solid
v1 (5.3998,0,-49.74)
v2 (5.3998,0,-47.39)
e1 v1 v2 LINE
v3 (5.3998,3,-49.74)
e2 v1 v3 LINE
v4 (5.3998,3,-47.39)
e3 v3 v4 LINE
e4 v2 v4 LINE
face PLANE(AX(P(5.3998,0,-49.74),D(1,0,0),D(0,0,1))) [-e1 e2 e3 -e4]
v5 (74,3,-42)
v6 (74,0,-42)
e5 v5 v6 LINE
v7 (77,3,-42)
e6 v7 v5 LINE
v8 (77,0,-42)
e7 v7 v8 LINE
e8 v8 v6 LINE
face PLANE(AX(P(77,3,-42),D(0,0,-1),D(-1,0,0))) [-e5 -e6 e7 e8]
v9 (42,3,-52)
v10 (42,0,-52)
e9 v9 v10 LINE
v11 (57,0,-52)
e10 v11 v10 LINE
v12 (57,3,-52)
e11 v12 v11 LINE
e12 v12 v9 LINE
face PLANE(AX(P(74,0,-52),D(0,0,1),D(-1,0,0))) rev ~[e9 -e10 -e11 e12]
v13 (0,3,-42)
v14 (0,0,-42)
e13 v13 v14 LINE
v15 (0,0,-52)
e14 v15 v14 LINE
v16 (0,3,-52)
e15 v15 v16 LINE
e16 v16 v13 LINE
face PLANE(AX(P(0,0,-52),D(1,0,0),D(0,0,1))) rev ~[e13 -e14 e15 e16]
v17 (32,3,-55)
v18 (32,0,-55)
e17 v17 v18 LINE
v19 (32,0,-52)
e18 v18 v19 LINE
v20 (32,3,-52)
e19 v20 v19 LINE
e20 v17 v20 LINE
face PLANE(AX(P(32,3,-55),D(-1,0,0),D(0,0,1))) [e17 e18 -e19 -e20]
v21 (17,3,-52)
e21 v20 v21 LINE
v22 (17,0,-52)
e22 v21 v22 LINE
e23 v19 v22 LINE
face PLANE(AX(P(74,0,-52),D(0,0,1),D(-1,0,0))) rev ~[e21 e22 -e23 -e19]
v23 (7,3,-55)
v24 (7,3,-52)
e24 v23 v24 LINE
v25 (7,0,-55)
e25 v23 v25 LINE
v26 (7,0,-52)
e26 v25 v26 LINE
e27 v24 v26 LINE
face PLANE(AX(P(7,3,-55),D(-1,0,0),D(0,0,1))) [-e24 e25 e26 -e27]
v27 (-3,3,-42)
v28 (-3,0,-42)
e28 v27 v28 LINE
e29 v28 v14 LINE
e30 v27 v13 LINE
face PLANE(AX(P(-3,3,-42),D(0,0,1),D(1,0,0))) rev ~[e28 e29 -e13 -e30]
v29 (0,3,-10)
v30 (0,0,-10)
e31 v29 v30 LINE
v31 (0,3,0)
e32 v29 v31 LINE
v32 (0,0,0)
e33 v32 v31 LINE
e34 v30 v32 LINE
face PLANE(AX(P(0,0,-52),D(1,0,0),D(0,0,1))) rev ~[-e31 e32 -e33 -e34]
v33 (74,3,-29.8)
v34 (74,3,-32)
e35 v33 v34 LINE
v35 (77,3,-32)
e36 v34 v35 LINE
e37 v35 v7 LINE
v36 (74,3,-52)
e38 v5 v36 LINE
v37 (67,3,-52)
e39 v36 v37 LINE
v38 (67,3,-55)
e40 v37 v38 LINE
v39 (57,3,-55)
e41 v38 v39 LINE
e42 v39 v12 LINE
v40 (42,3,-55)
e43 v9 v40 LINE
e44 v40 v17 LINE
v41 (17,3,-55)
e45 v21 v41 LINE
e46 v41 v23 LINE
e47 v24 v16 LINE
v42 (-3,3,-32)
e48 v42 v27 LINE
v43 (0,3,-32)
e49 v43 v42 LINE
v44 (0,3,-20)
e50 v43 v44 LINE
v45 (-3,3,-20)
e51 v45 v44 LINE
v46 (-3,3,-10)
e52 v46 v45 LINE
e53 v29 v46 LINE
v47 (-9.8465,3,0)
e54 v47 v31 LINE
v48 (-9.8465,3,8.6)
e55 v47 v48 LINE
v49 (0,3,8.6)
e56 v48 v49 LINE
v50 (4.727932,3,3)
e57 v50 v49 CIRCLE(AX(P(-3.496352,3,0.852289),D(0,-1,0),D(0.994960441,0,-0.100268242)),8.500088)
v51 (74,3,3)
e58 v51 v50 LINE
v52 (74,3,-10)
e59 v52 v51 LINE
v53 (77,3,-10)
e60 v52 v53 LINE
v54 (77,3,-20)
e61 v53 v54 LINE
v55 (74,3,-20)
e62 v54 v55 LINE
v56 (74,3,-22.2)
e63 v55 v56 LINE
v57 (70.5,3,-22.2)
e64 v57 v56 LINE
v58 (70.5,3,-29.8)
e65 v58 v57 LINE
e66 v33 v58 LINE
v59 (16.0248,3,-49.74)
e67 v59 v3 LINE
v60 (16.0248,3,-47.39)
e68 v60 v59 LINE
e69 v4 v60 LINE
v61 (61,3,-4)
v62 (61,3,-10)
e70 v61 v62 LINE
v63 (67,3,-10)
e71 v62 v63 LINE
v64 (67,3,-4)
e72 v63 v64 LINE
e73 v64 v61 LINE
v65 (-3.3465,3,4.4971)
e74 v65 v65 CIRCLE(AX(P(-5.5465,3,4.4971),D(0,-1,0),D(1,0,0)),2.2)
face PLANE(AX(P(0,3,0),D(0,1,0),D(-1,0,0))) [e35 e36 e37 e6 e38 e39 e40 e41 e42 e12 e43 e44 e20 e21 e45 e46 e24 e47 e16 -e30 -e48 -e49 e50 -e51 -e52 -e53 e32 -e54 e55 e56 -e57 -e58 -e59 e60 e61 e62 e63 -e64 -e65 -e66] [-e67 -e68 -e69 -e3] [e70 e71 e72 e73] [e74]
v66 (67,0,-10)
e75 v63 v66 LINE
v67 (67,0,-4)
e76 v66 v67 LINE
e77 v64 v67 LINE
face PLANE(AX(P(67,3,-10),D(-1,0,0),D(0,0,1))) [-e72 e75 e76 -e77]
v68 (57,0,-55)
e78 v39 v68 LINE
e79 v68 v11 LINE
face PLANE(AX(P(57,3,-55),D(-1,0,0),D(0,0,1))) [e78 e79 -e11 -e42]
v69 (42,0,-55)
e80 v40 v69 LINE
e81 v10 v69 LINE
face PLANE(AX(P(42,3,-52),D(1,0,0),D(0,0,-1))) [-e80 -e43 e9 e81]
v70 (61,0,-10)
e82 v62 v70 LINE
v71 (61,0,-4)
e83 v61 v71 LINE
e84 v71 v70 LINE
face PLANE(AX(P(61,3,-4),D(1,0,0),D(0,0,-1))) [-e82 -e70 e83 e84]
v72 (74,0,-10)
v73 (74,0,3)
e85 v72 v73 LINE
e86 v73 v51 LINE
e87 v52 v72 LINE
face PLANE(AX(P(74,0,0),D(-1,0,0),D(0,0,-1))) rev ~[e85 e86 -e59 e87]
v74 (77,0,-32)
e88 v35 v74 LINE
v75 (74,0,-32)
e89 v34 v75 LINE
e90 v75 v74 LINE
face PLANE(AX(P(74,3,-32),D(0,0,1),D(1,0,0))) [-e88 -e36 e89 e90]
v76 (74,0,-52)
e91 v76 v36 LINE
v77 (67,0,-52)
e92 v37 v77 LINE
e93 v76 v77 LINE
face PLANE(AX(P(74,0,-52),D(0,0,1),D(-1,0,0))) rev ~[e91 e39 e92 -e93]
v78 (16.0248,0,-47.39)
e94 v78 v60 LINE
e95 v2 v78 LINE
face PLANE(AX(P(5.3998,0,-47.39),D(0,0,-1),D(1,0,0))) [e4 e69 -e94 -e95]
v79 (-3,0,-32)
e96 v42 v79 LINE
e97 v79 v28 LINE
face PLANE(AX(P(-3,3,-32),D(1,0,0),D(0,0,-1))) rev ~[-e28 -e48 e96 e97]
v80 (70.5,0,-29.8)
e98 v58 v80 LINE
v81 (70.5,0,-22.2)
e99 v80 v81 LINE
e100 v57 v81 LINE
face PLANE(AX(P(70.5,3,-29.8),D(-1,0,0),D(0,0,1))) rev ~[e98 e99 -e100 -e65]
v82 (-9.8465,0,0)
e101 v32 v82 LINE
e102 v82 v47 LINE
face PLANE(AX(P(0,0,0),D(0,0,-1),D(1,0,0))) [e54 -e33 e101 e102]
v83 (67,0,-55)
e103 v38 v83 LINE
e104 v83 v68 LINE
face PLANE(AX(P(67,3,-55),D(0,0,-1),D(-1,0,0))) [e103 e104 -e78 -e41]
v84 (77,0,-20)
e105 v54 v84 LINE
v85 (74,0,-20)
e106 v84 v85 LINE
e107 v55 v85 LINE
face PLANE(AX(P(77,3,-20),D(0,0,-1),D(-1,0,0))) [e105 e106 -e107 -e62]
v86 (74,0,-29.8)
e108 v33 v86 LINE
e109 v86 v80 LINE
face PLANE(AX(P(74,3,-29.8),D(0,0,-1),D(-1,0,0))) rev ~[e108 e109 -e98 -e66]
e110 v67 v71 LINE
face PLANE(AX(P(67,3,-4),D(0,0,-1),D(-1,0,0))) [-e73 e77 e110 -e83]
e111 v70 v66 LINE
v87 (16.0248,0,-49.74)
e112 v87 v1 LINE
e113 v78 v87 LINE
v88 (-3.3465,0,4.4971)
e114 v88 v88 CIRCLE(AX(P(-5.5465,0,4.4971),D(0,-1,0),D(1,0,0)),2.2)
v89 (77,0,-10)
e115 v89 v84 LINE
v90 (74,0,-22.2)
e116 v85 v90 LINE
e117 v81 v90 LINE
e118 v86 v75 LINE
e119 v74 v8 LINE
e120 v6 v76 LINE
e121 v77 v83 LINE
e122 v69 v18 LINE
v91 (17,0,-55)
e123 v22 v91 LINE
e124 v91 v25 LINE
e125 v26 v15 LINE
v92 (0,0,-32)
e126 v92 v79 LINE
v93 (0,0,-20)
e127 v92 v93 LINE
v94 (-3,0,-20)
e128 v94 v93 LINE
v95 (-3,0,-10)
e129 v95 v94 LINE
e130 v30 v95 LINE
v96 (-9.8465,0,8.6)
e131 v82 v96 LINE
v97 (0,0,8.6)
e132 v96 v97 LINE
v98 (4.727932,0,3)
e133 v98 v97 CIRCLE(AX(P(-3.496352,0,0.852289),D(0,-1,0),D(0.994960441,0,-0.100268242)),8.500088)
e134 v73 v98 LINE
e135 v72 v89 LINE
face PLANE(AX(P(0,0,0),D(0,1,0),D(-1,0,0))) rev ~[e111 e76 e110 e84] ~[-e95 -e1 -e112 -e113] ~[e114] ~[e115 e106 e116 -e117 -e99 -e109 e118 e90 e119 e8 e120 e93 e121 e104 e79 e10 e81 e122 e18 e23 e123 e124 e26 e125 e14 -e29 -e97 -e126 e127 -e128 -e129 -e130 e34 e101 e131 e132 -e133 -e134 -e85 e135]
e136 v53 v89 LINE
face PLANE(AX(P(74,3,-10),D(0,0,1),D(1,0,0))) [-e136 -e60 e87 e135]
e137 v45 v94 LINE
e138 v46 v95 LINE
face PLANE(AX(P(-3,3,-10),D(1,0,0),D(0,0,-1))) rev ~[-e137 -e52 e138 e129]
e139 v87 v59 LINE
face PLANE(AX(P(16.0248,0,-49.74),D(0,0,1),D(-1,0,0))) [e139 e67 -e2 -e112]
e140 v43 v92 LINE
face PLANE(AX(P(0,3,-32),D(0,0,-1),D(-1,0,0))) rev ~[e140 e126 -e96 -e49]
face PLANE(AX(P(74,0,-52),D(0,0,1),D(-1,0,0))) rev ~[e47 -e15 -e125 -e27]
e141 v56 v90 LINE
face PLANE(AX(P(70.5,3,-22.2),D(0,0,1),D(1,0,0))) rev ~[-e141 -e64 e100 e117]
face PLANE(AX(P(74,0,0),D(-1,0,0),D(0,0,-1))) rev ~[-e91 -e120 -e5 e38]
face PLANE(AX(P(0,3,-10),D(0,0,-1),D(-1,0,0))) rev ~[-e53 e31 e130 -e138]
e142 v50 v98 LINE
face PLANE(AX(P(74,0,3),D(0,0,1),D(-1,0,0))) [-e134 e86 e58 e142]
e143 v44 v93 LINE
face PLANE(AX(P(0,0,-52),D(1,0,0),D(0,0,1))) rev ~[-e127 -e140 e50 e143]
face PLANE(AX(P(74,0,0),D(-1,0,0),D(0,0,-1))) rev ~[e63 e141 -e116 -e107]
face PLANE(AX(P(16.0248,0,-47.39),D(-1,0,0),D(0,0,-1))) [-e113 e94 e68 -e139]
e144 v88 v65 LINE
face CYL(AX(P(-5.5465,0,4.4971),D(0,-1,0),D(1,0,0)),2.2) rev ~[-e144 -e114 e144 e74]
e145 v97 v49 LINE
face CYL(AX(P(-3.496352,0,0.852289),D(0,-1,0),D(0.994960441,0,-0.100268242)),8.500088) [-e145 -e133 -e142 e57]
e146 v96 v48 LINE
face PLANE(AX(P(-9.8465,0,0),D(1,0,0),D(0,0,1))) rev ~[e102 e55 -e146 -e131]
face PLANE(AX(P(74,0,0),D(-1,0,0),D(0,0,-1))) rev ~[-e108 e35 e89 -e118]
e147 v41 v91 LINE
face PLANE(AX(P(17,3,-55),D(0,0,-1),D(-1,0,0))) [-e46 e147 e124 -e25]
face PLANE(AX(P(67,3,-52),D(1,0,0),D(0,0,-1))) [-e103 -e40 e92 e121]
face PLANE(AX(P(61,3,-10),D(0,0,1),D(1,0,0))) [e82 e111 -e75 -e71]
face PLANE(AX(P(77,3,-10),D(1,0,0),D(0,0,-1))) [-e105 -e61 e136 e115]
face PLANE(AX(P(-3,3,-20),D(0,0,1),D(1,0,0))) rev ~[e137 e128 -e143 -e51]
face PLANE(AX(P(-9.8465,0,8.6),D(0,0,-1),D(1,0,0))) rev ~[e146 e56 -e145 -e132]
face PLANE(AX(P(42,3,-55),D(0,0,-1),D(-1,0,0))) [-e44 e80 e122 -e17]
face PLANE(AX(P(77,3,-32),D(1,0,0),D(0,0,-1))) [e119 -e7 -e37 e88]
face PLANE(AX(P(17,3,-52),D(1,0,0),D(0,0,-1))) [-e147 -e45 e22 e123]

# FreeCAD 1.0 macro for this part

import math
import FreeCAD as App
import Part
import Sketcher
from FreeCAD import Vector
Q = App.Units.Quantity

doc = App.newDocument("Part")
body = doc.addObject("PartDesign::Body", "Body")

sketch1 = body.newObject("Sketcher::SketchObject", "Sketch")
sketch1.AttachmentSupport = (doc.getObject("XZ_Plane"), [""])
sketch1.MapMode = "FlatFace"
sketch1.addGeometry([
    Part.LineSegment(Vector(0, -52, 0), Vector(0, 0, 0)),
    Part.LineSegment(Vector(0, 0, 0), Vector(74, 0, 0)),
    Part.LineSegment(Vector(74, 0, 0), Vector(74, -52, 0)),
    Part.LineSegment(Vector(74, -52, 0), Vector(0, -52, 0)),
], False)
sketch1.addConstraint([
    Sketcher.Constraint("Coincident", 0, 2, 1, 1),
    Sketcher.Constraint("Coincident", 1, 2, 2, 1),
    Sketcher.Constraint("Coincident", 2, 2, 3, 1),
    Sketcher.Constraint("Coincident", 3, 2, 0, 1),
    Sketcher.Constraint("Vertical", 0),
    Sketcher.Constraint("Horizontal", 1),
    Sketcher.Constraint("Vertical", 2),
    Sketcher.Constraint("Horizontal", 3),
    Sketcher.Constraint("Coincident", 0, 2, -1, 1),
    Sketcher.Constraint("DistanceX", 1, 1, 1, 2, Q("74 mm")),
    Sketcher.Constraint("DistanceY", 0, 1, 0, 2, Q("52 mm")),
])
pad1 = body.newObject("PartDesign::Pad", "Pad")
pad1.Profile = sketch1
pad1.Length = 3
pad1.Reversed = True

sketch2 = body.newObject("Sketcher::SketchObject", "Sketch001")
sketch2.AttachmentSupport = (doc.getObject("XZ_Plane"), [""])
sketch2.MapMode = "FlatFace"
sketch2.AttachmentOffset = App.Placement(Vector(0, 0, -3), App.Rotation())
sketch2.addGeometry([
    Part.LineSegment(Vector(7, -55, 0), Vector(7, -52, 0)),
    Part.LineSegment(Vector(7, -52, 0), Vector(17, -52, 0)),
    Part.LineSegment(Vector(17, -52, 0), Vector(17, -55, 0)),
    Part.LineSegment(Vector(17, -55, 0), Vector(7, -55, 0)),
    Part.LineSegment(Vector(57, -52, 0), Vector(67, -52, 0)),
    Part.LineSegment(Vector(67, -52, 0), Vector(67, -55, 0)),
    Part.LineSegment(Vector(67, -55, 0), Vector(57, -55, 0)),
    Part.LineSegment(Vector(57, -55, 0), Vector(57, -52, 0)),
    Part.LineSegment(Vector(32, -55, 0), Vector(32, -52, 0)),
    Part.LineSegment(Vector(32, -52, 0), Vector(42, -52, 0)),
    Part.LineSegment(Vector(42, -52, 0), Vector(42, -55, 0)),
    Part.LineSegment(Vector(42, -55, 0), Vector(32, -55, 0)),
], False)
sketch2.addConstraint([
    Sketcher.Constraint("Coincident", 0, 2, 1, 1),
    Sketcher.Constraint("Coincident", 1, 2, 2, 1),
    Sketcher.Constraint("Coincident", 2, 2, 3, 1),
    Sketcher.Constraint("Coincident", 3, 2, 0, 1),
    Sketcher.Constraint("Coincident", 4, 2, 5, 1),
    Sketcher.Constraint("Coincident", 5, 2, 6, 1),
    Sketcher.Constraint("Coincident", 6, 2, 7, 1),
    Sketcher.Constraint("Coincident", 7, 2, 4, 1),
    Sketcher.Constraint("Coincident", 8, 2, 9, 1),
    Sketcher.Constraint("Coincident", 9, 2, 10, 1),
    Sketcher.Constraint("Coincident", 10, 2, 11, 1),
    Sketcher.Constraint("Coincident", 11, 2, 8, 1),
    Sketcher.Constraint("Vertical", 0),
    Sketcher.Constraint("Horizontal", 1),
    Sketcher.Constraint("Vertical", 2),
    Sketcher.Constraint("Horizontal", 3),
    Sketcher.Constraint("Horizontal", 4),
    Sketcher.Constraint("Vertical", 5),
    Sketcher.Constraint("Horizontal", 6),
    Sketcher.Constraint("Vertical", 7),
    Sketcher.Constraint("Vertical", 8),
    Sketcher.Constraint("Horizontal", 9),
    Sketcher.Constraint("Vertical", 10),
    Sketcher.Constraint("Horizontal", 11),
    Sketcher.Constraint("Horizontal", 1, 2, 4, 2),
    Sketcher.Constraint("Horizontal", 3, 2, 5, 2),
    Sketcher.Constraint("Horizontal", 7, 2, 8, 2),
    Sketcher.Constraint("Horizontal", 6, 2, 10, 2),
    Sketcher.Constraint("Equal", 3, 4),
    Sketcher.Constraint("Equal", 6, 9),
    Sketcher.Constraint("DistanceX", 1, 1, 1, 2, Q("10 mm")),
    Sketcher.Constraint("DistanceY", 0, 1, 0, 2, Q("3 mm")),
    Sketcher.Constraint("DistanceX", -1, 1, 0, 2, Q("7 mm")),
    Sketcher.Constraint("DistanceX", 2, 2, 6, 2, Q("40 mm")),
    Sketcher.Constraint("DistanceX", 1, 2, 8, 2, Q("15 mm")),
    Sketcher.Constraint("DistanceY", 0, 2, -1, 1, Q("52 mm")),
])
pad2 = body.newObject("PartDesign::Pad", "Pad001")
pad2.Profile = sketch2
pad2.Length = 3

sketch3 = body.newObject("Sketcher::SketchObject", "Sketch002")
sketch3.AttachmentSupport = (doc.getObject("XZ_Plane"), [""])
sketch3.MapMode = "FlatFace"
sketch3.addGeometry([
    Part.LineSegment(Vector(5.4, -49.7, 0), Vector(16, -49.7, 0)),
    Part.LineSegment(Vector(16, -49.7, 0), Vector(16, -47.4, 0)),
    Part.LineSegment(Vector(16, -47.4, 0), Vector(5.4, -47.4, 0)),
    Part.LineSegment(Vector(5.4, -47.4, 0), Vector(5.4, -49.7, 0)),
], False)
sketch3.addConstraint([
    Sketcher.Constraint("Coincident", 0, 2, 1, 1),
    Sketcher.Constraint("Coincident", 1, 2, 2, 1),
    Sketcher.Constraint("Coincident", 2, 2, 3, 1),
    Sketcher.Constraint("Coincident", 3, 2, 0, 1),
    Sketcher.Constraint("Horizontal", 0),
    Sketcher.Constraint("Vertical", 1),
    Sketcher.Constraint("Horizontal", 2),
    Sketcher.Constraint("Vertical", 3),
    Sketcher.Constraint("DistanceY", 1, 1, 1, 2, Q("2.35 mm")),
    Sketcher.Constraint("DistanceX", 0, 1, 0, 2, Q("10.625 mm")),
    Sketcher.Constraint("DistanceY", 0, 2, -1, 1, Q("49.74 mm")),
    Sketcher.Constraint("DistanceX", -1, 1, 0, 2, Q("16.0248 mm")),
])
pocket1 = body.newObject("PartDesign::Pocket", "Pocket")
pocket1.Profile = sketch3
pocket1.Length = 3

sketch4 = body.newObject("Sketcher::SketchObject", "Sketch003")
sketch4.AttachmentSupport = (doc.getObject("XZ_Plane"), [""])
sketch4.MapMode = "FlatFace"
sketch4.AttachmentOffset = App.Placement(Vector(0, 0, -3), App.Rotation())
sketch4.addGeometry([
    Part.LineSegment(Vector(70.5, -29.8, 0), Vector(70.5, -22.2, 0)),
    Part.LineSegment(Vector(70.5, -22.2, 0), Vector(74, -22.2, 0)),
    Part.LineSegment(Vector(74, -22.2, 0), Vector(74, -29.8, 0)),
    Part.LineSegment(Vector(74, -29.8, 0), Vector(70.5, -29.8, 0)),
], False)
sketch4.addConstraint([
    Sketcher.Constraint("Coincident", 0, 2, 1, 1),
    Sketcher.Constraint("Coincident", 1, 2, 2, 1),
    Sketcher.Constraint("Coincident", 2, 2, 3, 1),
    Sketcher.Constraint("Coincident", 3, 2, 0, 1),
    Sketcher.Constraint("Vertical", 0),
    Sketcher.Constraint("Horizontal", 1),
    Sketcher.Constraint("Vertical", 2),
    Sketcher.Constraint("Horizontal", 3),
    Sketcher.Constraint("DistanceX", 1, 1, 1, 2, Q("3.5 mm")),
    Sketcher.Constraint("DistanceY", 0, 1, 0, 2, Q("7.6 mm")),
    Sketcher.Constraint("DistanceY", 0, 2, -1, 1, Q("22.2 mm")),
    Sketcher.Constraint("DistanceX", -1, 1, 1, 2, Q("74 mm")),
])
pocket2 = body.newObject("PartDesign::Pocket", "Pocket001")
pocket2.Profile = sketch4
pocket2.Length = 10
pocket2.Reversed = True

sketch5 = body.newObject("Sketcher::SketchObject", "Sketch004")
sketch5.AttachmentSupport = (doc.getObject("XZ_Plane"), [""])
sketch5.MapMode = "FlatFace"
sketch5.AttachmentOffset = App.Placement(Vector(0, 0, -3), App.Rotation())
sketch5.addGeometry([
    Part.LineSegment(Vector(-3, -10, 0), Vector(0, -10, 0)),
    Part.LineSegment(Vector(0, -10, 0), Vector(0, -20, 0)),
    Part.LineSegment(Vector(0, -20, 0), Vector(-3, -20, 0)),
    Part.LineSegment(Vector(-3, -20, 0), Vector(-3, -10, 0)),
    Part.LineSegment(Vector(-3, -32, 0), Vector(0, -32, 0)),
    Part.LineSegment(Vector(0, -32, 0), Vector(0, -42, 0)),
    Part.LineSegment(Vector(0, -42, 0), Vector(-3, -42, 0)),
    Part.LineSegment(Vector(-3, -42, 0), Vector(-3, -32, 0)),
    Part.LineSegment(Vector(74, -20, 0), Vector(74, -10, 0)),
    Part.LineSegment(Vector(74, -10, 0), Vector(77, -10, 0)),
    Part.LineSegment(Vector(77, -10, 0), Vector(77, -20, 0)),
    Part.LineSegment(Vector(77, -20, 0), Vector(74, -20, 0)),
    Part.LineSegment(Vector(74, -42, 0), Vector(74, -32, 0)),
    Part.LineSegment(Vector(74, -32, 0), Vector(77, -32, 0)),
    Part.LineSegment(Vector(77, -32, 0), Vector(77, -42, 0)),
    Part.LineSegment(Vector(77, -42, 0), Vector(74, -42, 0)),
], False)
sketch5.addConstraint([
    Sketcher.Constraint("Coincident", 0, 2, 1, 1),
    Sketcher.Constraint("Coincident", 1, 2, 2, 1),
    Sketcher.Constraint("Coincident", 2, 2, 3, 1),
    Sketcher.Constraint("Coincident", 3, 2, 0, 1),
    Sketcher.Constraint("Coincident", 4, 2, 5, 1),
    Sketcher.Constraint("Coincident", 5, 2, 6, 1),
    Sketcher.Constraint("Coincident", 6, 2, 7, 1),
    Sketcher.Constraint("Coincident", 7, 2, 4, 1),
    Sketcher.Constraint("Coincident", 8, 2, 9, 1),
    Sketcher.Constraint("Coincident", 9, 2, 10, 1),
    Sketcher.Constraint("Coincident", 10, 2, 11, 1),
    Sketcher.Constraint("Coincident", 11, 2, 8, 1),
    Sketcher.Constraint("Coincident", 12, 2, 13, 1),
    Sketcher.Constraint("Coincident", 13, 2, 14, 1),
    Sketcher.Constraint("Coincident", 14, 2, 15, 1),
    Sketcher.Constraint("Coincident", 15, 2, 12, 1),
    Sketcher.Constraint("Horizontal", 0),
    Sketcher.Constraint("Vertical", 1),
    Sketcher.Constraint("Horizontal", 2),
    Sketcher.Constraint("Vertical", 3),
    Sketcher.Constraint("Horizontal", 4),
    Sketcher.Constraint("Vertical", 5),
    Sketcher.Constraint("Horizontal", 6),
    Sketcher.Constraint("Vertical", 7),
    Sketcher.Constraint("Vertical", 8),
    Sketcher.Constraint("Horizontal", 9),
    Sketcher.Constraint("Vertical", 10),
    Sketcher.Constraint("Horizontal", 11),
    Sketcher.Constraint("Vertical", 12),
    Sketcher.Constraint("Horizontal", 13),
    Sketcher.Constraint("Vertical", 14),
    Sketcher.Constraint("Horizontal", 15),
    Sketcher.Constraint("PointOnObject", 0, 2, -2),
    Sketcher.Constraint("PointOnObject", 4, 2, -2),
    Sketcher.Constraint("Horizontal", 3, 2, 8, 2),
    Sketcher.Constraint("Horizontal", 2, 2, 10, 2),
    Sketcher.Constraint("Horizontal", 7, 2, 12, 2),
    Sketcher.Constraint("Horizontal", 6, 2, 14, 2),
    Sketcher.Constraint("Vertical", 3, 2, 6, 2),
    Sketcher.Constraint("Vertical", 11, 2, 12, 2),
    Sketcher.Constraint("Vertical", 10, 2, 13, 2),
    Sketcher.Constraint("Equal", 6, 9),
    Sketcher.Constraint("Equal", 3, 5),
    Sketcher.Constraint("DistanceX", 0, 1, 0, 2, Q("3 mm")),
    Sketcher.Constraint("DistanceY", 1, 2, 1, 1, Q("10 mm")),
    Sketcher.Constraint("DistanceY", 0, 2, -1, 1, Q("10 mm")),
    Sketcher.Constraint("DistanceY", 4, 2, -1, 1, Q("32 mm")),
    Sketcher.Constraint("DistanceX", -1, 1, 8, 2, Q("74 mm")),
])
pad3 = body.newObject("PartDesign::Pad", "Pad002")
pad3.Profile = sketch5
pad3.Length = 3

sketch6 = body.newObject("Sketcher::SketchObject", "Sketch005")
sketch6.AttachmentSupport = (doc.getObject("XZ_Plane"), [""])
sketch6.MapMode = "FlatFace"
sketch6.addGeometry([
    Part.ArcOfCircle(Part.Circle(Vector(-3.5, 0.9, 0), Vector(0, 0, 1), 8.5), math.radians(-6), math.radians(66)),
    Part.LineSegment(Vector(0, 8.6, 0), Vector(-9.8, 8.6, 0)),
    Part.LineSegment(Vector(-9.8, 8.6, 0), Vector(-9.8, 0, 0)),
    Part.LineSegment(Vector(-9.8, 0, 0), Vector(5, 0, 0)),
    Part.Circle(Vector(-5.5, 4.5, 0), Vector(0, 0, 1), 2.2),
], False)
sketch6.addConstraint([
    Sketcher.Constraint("Coincident", 0, 2, 1, 1),
    Sketcher.Constraint("Coincident", 1, 2, 2, 1),
    Sketcher.Constraint("Coincident", 2, 2, 3, 1),
    Sketcher.Constraint("Coincident", 3, 2, 0, 1),
    Sketcher.Constraint("Horizontal", 1),
    Sketcher.Constraint("Vertical", 2),
    Sketcher.Constraint("Horizontal", 3),
    Sketcher.Constraint("PointOnObject", 0, 2, -2),
    Sketcher.Constraint("PointOnObject", 2, 2, -1),
    Sketcher.Constraint("Diameter", 4, Q("4.4 mm")),
    Sketcher.Constraint("Radius", 0, Q("8.5 mm")),
    Sketcher.Constraint("DistanceY", 2, 2, 2, 1, Q("8.6 mm")),
    Sketcher.Constraint("DistanceX", 1, 2, 4, 3, Q("4.3 mm")),
    Sketcher.Constraint("DistanceX", 1, 2, 1, 1, Q("9.8465 mm")),
    Sketcher.Constraint("DistanceX", 3, 1, 3, 2, Q("14.8074 mm")),
    Sketcher.Constraint("DistanceY", -1, 1, 4, 3, Q("4.497 mm")),
])
pad4 = body.newObject("PartDesign::Pad", "Pad003")
pad4.Profile = sketch6
pad4.Length = 3
pad4.Reversed = True

sketch7 = body.newObject("Sketcher::SketchObject", "Sketch006")
sketch7.AttachmentSupport = (doc.getObject("XZ_Plane"), [""])
sketch7.MapMode = "FlatFace"
sketch7.addGeometry([
    Part.LineSegment(Vector(0, 3, 0), Vector(0, 0, 0)),
    Part.LineSegment(Vector(0, 0, 0), Vector(74, 0, 0)),
    Part.LineSegment(Vector(74, 0, 0), Vector(74, 3, 0)),
    Part.LineSegment(Vector(74, 3, 0), Vector(0, 3, 0)),
], False)
sketch7.addConstraint([
    Sketcher.Constraint("Coincident", 0, 2, 1, 1),
    Sketcher.Constraint("Coincident", 1, 2, 2, 1),
    Sketcher.Constraint("Coincident", 2, 2, 3, 1),
    Sketcher.Constraint("Coincident", 3, 2, 0, 1),
    Sketcher.Constraint("Vertical", 0),
    Sketcher.Constraint("Horizontal", 1),
    Sketcher.Constraint("Vertical", 2),
    Sketcher.Constraint("Horizontal", 3),
    Sketcher.Constraint("Coincident", 0, 2, -1, 1),
    Sketcher.Constraint("DistanceY", 0, 2, 0, 1, Q("3 mm")),
    Sketcher.Constraint("DistanceX", 1, 1, 1, 2, Q("74 mm")),
])
pad5 = body.newObject("PartDesign::Pad", "Pad004")
pad5.Profile = sketch7
pad5.Length = 3
pad5.Reversed = True

sketch8 = body.newObject("Sketcher::SketchObject", "Sketch007")
sketch8.AttachmentSupport = (doc.getObject("XZ_Plane"), [""])
sketch8.MapMode = "FlatFace"
sketch8.AttachmentOffset = App.Placement(Vector(0, 0, -3), App.Rotation())
sketch8.addGeometry([
    Part.LineSegment(Vector(61, -4, 0), Vector(67, -4, 0)),
    Part.LineSegment(Vector(67, -4, 0), Vector(67, -10, 0)),
    Part.LineSegment(Vector(67, -10, 0), Vector(61, -10, 0)),
    Part.LineSegment(Vector(61, -10, 0), Vector(61, -4, 0)),
], False)
sketch8.addConstraint([
    Sketcher.Constraint("Coincident", 0, 2, 1, 1),
    Sketcher.Constraint("Coincident", 1, 2, 2, 1),
    Sketcher.Constraint("Coincident", 2, 2, 3, 1),
    Sketcher.Constraint("Coincident", 3, 2, 0, 1),
    Sketcher.Constraint("Horizontal", 0),
    Sketcher.Constraint("Vertical", 1),
    Sketcher.Constraint("Horizontal", 2),
    Sketcher.Constraint("Vertical", 3),
    Sketcher.Constraint("Equal", 2, 1),
    Sketcher.Constraint("DistanceX", 0, 1, 0, 2, Q("6 mm")),
    Sketcher.Constraint("DistanceX", -1, 1, 0, 2, Q("67 mm")),
    Sketcher.Constraint("DistanceY", 0, 2, -1, 1, Q("4 mm")),
])
pocket3 = body.newObject("PartDesign::Pocket", "Pocket002")
pocket3.Profile = sketch8
pocket3.Length = 10
pocket3.Reversed = True

doc.recompute()
